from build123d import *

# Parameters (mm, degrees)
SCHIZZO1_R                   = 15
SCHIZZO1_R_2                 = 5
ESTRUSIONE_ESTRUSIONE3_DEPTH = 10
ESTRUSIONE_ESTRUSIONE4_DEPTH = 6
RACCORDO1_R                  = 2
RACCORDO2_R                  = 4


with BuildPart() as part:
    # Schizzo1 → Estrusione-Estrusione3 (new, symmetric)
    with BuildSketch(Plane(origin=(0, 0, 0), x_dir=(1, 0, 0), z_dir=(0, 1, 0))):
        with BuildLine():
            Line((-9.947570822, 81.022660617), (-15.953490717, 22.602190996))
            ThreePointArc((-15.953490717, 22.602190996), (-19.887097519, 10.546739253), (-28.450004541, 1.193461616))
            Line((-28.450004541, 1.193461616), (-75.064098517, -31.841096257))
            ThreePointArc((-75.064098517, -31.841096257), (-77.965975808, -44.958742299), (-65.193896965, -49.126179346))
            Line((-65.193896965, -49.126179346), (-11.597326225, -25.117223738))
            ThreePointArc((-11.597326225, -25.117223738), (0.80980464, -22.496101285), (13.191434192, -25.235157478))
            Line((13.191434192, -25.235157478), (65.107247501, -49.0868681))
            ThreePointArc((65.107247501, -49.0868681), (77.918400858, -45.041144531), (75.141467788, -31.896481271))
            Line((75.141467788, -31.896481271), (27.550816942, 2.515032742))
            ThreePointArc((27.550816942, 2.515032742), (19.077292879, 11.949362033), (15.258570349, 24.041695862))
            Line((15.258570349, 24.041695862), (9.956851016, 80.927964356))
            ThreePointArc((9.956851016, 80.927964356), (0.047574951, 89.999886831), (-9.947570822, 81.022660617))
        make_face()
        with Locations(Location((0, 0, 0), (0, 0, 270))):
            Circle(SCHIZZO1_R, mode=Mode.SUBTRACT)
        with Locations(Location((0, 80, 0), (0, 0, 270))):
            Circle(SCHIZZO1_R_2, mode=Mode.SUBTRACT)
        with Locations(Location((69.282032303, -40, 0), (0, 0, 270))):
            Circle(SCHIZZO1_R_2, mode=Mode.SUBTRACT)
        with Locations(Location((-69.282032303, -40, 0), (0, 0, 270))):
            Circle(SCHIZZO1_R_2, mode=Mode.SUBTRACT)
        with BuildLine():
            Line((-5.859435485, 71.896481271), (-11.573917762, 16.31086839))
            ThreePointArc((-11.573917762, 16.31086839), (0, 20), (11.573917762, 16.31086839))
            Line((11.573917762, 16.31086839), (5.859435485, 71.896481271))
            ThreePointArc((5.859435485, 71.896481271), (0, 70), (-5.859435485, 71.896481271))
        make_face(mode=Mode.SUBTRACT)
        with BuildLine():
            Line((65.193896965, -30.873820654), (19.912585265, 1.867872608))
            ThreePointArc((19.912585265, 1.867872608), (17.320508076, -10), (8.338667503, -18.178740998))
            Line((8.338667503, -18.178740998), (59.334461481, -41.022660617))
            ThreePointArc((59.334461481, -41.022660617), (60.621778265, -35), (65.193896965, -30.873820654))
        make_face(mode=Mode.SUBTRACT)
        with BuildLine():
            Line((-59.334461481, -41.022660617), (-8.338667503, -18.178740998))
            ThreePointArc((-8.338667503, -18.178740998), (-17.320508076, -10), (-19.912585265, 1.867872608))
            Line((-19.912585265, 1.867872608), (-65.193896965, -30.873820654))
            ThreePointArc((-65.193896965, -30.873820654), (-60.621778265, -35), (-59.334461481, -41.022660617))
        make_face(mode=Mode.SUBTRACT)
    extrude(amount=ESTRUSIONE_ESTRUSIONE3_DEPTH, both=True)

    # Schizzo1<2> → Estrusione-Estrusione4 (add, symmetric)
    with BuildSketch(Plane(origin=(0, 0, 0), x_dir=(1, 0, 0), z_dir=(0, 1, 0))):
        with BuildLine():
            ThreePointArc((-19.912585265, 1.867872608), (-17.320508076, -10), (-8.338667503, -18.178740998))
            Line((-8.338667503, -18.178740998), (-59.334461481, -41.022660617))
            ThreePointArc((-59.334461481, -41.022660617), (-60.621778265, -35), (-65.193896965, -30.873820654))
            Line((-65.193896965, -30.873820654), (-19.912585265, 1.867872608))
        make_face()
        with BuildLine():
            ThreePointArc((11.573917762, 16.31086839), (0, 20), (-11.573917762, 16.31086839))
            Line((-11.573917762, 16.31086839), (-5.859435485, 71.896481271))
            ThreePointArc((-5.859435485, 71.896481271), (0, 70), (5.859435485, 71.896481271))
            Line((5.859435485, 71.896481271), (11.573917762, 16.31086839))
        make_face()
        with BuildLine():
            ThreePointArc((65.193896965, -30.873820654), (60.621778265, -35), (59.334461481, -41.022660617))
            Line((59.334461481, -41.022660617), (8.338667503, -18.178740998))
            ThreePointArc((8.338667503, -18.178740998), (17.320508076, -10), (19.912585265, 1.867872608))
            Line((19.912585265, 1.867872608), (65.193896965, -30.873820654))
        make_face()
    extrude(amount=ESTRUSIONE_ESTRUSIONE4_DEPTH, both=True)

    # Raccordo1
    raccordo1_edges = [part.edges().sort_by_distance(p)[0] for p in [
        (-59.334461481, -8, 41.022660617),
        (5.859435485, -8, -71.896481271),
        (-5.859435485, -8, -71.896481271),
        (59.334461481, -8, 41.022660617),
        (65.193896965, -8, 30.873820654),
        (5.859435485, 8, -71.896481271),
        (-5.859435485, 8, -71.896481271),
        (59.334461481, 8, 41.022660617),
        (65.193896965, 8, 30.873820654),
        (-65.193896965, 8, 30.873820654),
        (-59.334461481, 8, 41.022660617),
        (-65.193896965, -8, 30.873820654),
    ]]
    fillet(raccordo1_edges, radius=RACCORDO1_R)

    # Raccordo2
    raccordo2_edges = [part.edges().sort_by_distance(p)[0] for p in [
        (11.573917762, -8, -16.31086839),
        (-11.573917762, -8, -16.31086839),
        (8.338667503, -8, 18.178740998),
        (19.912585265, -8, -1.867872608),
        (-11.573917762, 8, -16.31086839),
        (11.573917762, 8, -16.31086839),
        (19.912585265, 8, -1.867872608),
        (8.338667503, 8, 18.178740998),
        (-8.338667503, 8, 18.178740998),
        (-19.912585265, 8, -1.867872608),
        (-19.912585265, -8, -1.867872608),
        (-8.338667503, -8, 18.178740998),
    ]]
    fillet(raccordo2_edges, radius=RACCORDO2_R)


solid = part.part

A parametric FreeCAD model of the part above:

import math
import FreeCAD as App
import Part
import Sketcher

V = App.Vector
Q = App.Units.Quantity


def edges_at(feature, points):
    """Names of the edges that pass closest to the given points."""
    edges = feature.Shape.Edges
    near = lambda p: min(range(len(edges)), key=lambda i: edges[i].distToShape(Part.Vertex(*p))[0])
    return sorted({f"Edge{near(p) + 1}" for p in points})

doc = App.newDocument("Part")
body = doc.addObject("PartDesign::Body", "Body")

# Sketch on XZ plane
sketch1 = doc.addObject("Sketcher::SketchObject", "Sketch")
body.addObject(sketch1)
sketch1.AttachmentSupport = (doc.XZ_Plane, [""])
sketch1.MapMode = "FlatFace"
sketch1.addGeometry(Part.LineSegment(V(-10, -81, 0), V(-16, -23, 0)), False)
sketch1.addGeometry(Part.ArcOfCircle(Part.Circle(V(-46, -26, 0), V(0, 0, 1), 30), math.radians(6), math.radians(55)), False)
sketch1.addGeometry(Part.LineSegment(V(-28, -1, 0), V(-75, 32, 0)), False)
sketch1.addGeometry(Part.ArcOfCircle(Part.Circle(V(-69, 40, 0), V(0, 0, 1), 10), math.radians(66), math.radians(235)), False)
sketch1.addGeometry(Part.LineSegment(V(-65, 49, 0), V(-12, 25, 0)), False)
sketch1.addGeometry(Part.ArcOfCircle(Part.Circle(V(1, 52, 0), V(0, 0, 1), 30), math.radians(-114), math.radians(-65)), False)
sketch1.addGeometry(Part.LineSegment(V(13, 25, 0), V(65, 49, 0)), False)
sketch1.addGeometry(Part.ArcOfCircle(Part.Circle(V(69, 40, 0), V(0, 0, 1), 10), math.radians(-54), math.radians(115)), False)
sketch1.addGeometry(Part.LineSegment(V(75, 32, 0), V(28, -3, 0)), False)
sketch1.addGeometry(Part.ArcOfCircle(Part.Circle(V(45, -27, 0), V(0, 0, 1), 30), math.radians(126), math.radians(175)), False)
sketch1.addGeometry(Part.LineSegment(V(15, -24, 0), V(10, -81, 0)), False)
sketch1.addGeometry(Part.ArcOfCircle(Part.Circle(V(0, -80, 0), V(0, 0, 1), 10), math.radians(-174), math.radians(-5)), False)
sketch1.addGeometry(Part.Circle(V(-69, 40, 0), V(0, 0, 1), 5), False)
sketch1.addGeometry(Part.LineSegment(V(-8, 18, 0), V(-59, 41, 0)), False)
sketch1.addGeometry(Part.ArcOfCircle(Part.Circle(V(-69, 40, 0), V(0, 0, 1), 10), math.radians(-66), math.radians(6)), False)
sketch1.addGeometry(Part.LineSegment(V(-65, 31, 0), V(-20, -2, 0)), False)
sketch1.addGeometry(Part.ArcOfCircle(Part.Circle(V(0, 0, 0), V(0, 0, 1), 20), math.radians(115), math.radians(185)), False)
sketch1.addGeometry(Part.LineSegment(V(20, -2, 0), V(65, 31, 0)), False)
sketch1.addGeometry(Part.ArcOfCircle(Part.Circle(V(69, 40, 0), V(0, 0, 1), 10), math.radians(174), math.radians(246)), False)
sketch1.addGeometry(Part.LineSegment(V(59, 41, 0), V(8, 18, 0)), False)
sketch1.addGeometry(Part.ArcOfCircle(Part.Circle(V(0, 0, 0), V(0, 0, 1), 20), math.radians(-5), math.radians(65)), False)
sketch1.addGeometry(Part.Circle(V(69, 40, 0), V(0, 0, 1), 5), False)
sketch1.addGeometry(Part.Circle(V(0, 0, 0), V(0, 0, 1), 15), False)
sketch1.addGeometry(Part.LineSegment(V(-12, -16, 0), V(-6, -72, 0)), False)
sketch1.addGeometry(Part.ArcOfCircle(Part.Circle(V(0, -80, 0), V(0, 0, 1), 10), math.radians(54), math.radians(126)), False)
sketch1.addGeometry(Part.LineSegment(V(6, -72, 0), V(12, -16, 0)), False)
sketch1.addGeometry(Part.ArcOfCircle(Part.Circle(V(0, 0, 0), V(0, 0, 1), 20), math.radians(-125), math.radians(-55)), False)
sketch1.addGeometry(Part.Circle(V(0, -80, 0), V(0, 0, 1), 5), False)
sketch1.addConstraint(Sketcher.Constraint("Tangent", 0, 2, 1, 1))
sketch1.addConstraint(Sketcher.Constraint("Tangent", 1, 2, 2, 1))
sketch1.addConstraint(Sketcher.Constraint("Tangent", 2, 2, 3, 2))
sketch1.addConstraint(Sketcher.Constraint("Tangent", 3, 1, 4, 1))
sketch1.addConstraint(Sketcher.Constraint("Tangent", 4, 2, 5, 1))
sketch1.addConstraint(Sketcher.Constraint("Tangent", 5, 2, 6, 1))
sketch1.addConstraint(Sketcher.Constraint("Tangent", 6, 2, 7, 2))
sketch1.addConstraint(Sketcher.Constraint("Tangent", 7, 1, 8, 1))
sketch1.addConstraint(Sketcher.Constraint("Tangent", 8, 2, 9, 1))
sketch1.addConstraint(Sketcher.Constraint("Tangent", 9, 2, 10, 1))
sketch1.addConstraint(Sketcher.Constraint("Tangent", 10, 2, 11, 2))
sketch1.addConstraint(Sketcher.Constraint("Tangent", 11, 1, 0, 1))
sketch1.addConstraint(Sketcher.Constraint("Coincident", 13, 2, 14, 2))
sketch1.addConstraint(Sketcher.Constraint("Coincident", 14, 1, 15, 1))
sketch1.addConstraint(Sketcher.Constraint("Coincident", 15, 2, 16, 2))
sketch1.addConstraint(Sketcher.Constraint("Coincident", 16, 1, 13, 1))
sketch1.addConstraint(Sketcher.Constraint("Coincident", 17, 2, 18, 2))
sketch1.addConstraint(Sketcher.Constraint("Coincident", 18, 1, 19, 1))
sketch1.addConstraint(Sketcher.Constraint("Coincident", 19, 2, 20, 2))
sketch1.addConstraint(Sketcher.Constraint("Coincident", 20, 1, 17, 1))
sketch1.addConstraint(Sketcher.Constraint("Coincident", 23, 2, 24, 2))
sketch1.addConstraint(Sketcher.Constraint("Coincident", 24, 1, 25, 1))
sketch1.addConstraint(Sketcher.Constraint("Coincident", 25, 2, 26, 2))
sketch1.addConstraint(Sketcher.Constraint("Coincident", 26, 1, 23, 1))
sketch1.addConstraint(Sketcher.Constraint("Coincident", 16, 3, -1, 1))
sketch1.addConstraint(Sketcher.Constraint("Coincident", 20, 3, -1, 1))
sketch1.addConstraint(Sketcher.Constraint("Coincident", 22, 3, -1, 1))
sketch1.addConstraint(Sketcher.Constraint("Coincident", 26, 3, -1, 1))
sketch1.addConstraint(Sketcher.Constraint("Coincident", 12, 3, 3, 3))
sketch1.addConstraint(Sketcher.Constraint("Coincident", 14, 3, 3, 3))
sketch1.addConstraint(Sketcher.Constraint("Coincident", 18, 3, 7, 3))
sketch1.addConstraint(Sketcher.Constraint("Coincident", 21, 3, 7, 3))
sketch1.addConstraint(Sketcher.Constraint("Coincident", 24, 3, 11, 3))
sketch1.addConstraint(Sketcher.Constraint("Coincident", 27, 3, 11, 3))
sketch1.addConstraint(Sketcher.Constraint("Equal", 1, 5))
sketch1.addConstraint(Sketcher.Constraint("Equal", 3, 7))
sketch1.addConstraint(Sketcher.Constraint("Equal", 5, 9))
sketch1.addConstraint(Sketcher.Constraint("Equal", 7, 11))
sketch1.addConstraint(Sketcher.Constraint("Equal", 11, 14))
sketch1.addConstraint(Sketcher.Constraint("Equal", 14, 18))
sketch1.addConstraint(Sketcher.Constraint("Equal", 16, 20))
sketch1.addConstraint(Sketcher.Constraint("Equal", 12, 21))
sketch1.addConstraint(Sketcher.Constraint("Equal", 18, 24))
sketch1.addConstraint(Sketcher.Constraint("Equal", 20, 26))
sketch1.addConstraint(Sketcher.Constraint("Equal", 21, 27))
sketch1.addConstraint(Sketcher.Constraint("Symmetric", 3, 3, 7, 3, -2))
sketch1.addConstraint(Sketcher.Constraint("Symmetric", 23, 2, 24, 1, -2))
sketch1.addConstraint(Sketcher.Constraint("Parallel", 4, 13))
sketch1.addConstraint(Sketcher.Constraint("Parallel", 8, 17))
sketch1.addConstraint(Sketcher.Constraint("Parallel", 0, 23))
sketch1.addConstraint(Sketcher.Constraint("Horizontal", 14, 1, 17, 2))
sketch1.addConstraint(Sketcher.Constraint("Horizontal", 13, 2, 18, 1))
sketch1.addConstraint(Sketcher.Constraint("Horizontal", 16, 1, 19, 2))
sketch1.addConstraint(Sketcher.Constraint("Horizontal", 15, 2, 20, 1))
sketch1.addConstraint(Sketcher.Constraint("Horizontal", 25, 2, 26, 1))
sketch1.addConstraint(Sketcher.Constraint("Vertical", 3, 1, 14, 1))
sketch1.addConstraint(Sketcher.Constraint("Equal", 0, 4))
sketch1.addConstraint(Sketcher.Constraint("Equal", 2, 6))
sketch1.addConstraint(Sketcher.Constraint("Equal", 4, 8))
sketch1.addConstraint(Sketcher.Constraint("Equal", 6, 10))
sketch1.addConstraint(Sketcher.Constraint("Equal", 13, 15))
sketch1.addConstraint(Sketcher.Constraint("Equal", 19, 23))
sketch1.addConstraint(Sketcher.Constraint("Diameter", 12, Q("10 mm")))
sketch1.addConstraint(Sketcher.Constraint("Diameter", 22, Q("30 mm")))
sketch1.addConstraint(Sketcher.Constraint("Radius", 1, Q("30 mm")))
sketch1.addConstraint(Sketcher.Constraint("Radius", 3, Q("10 mm")))
sketch1.addConstraint(Sketcher.Constraint("Radius", 16, Q("20 mm")))
sketch1.addConstraint(Sketcher.Constraint("DistanceY", -1, 1, 3, 3, Q("40 mm")))
sketch1.addConstraint(Sketcher.Constraint("DistanceY", 11, 3, -1, 1, Q("80 mm")))
sketch1.addConstraint(Sketcher.Constraint("DistanceX", 2, 2, -1, 1, Q("75.064099 mm")))
sketch1.addConstraint(Sketcher.Constraint("DistanceX", 2, 2, 3, 1, Q("9.870202 mm")))
sketch1.addConstraint(Sketcher.Constraint("Distance", 2, Q("57.132791 mm")))
pad1 = doc.addObject("PartDesign::Pad", "Pad")
body.addObject(pad1)
pad1.Profile = sketch1
pad1.Length = 20
pad1.Midplane = True

# Sketch on XZ plane
sketch2 = doc.addObject("Sketcher::SketchObject", "Sketch001")
body.addObject(sketch2)
sketch2.AttachmentSupport = (doc.XZ_Plane, [""])
sketch2.MapMode = "FlatFace"
sketch2.addGeometry(Part.ArcOfCircle(Part.Circle(V(0, 0, 0), V(0, 0, 1), 20), math.radians(115), math.radians(185)), False)
sketch2.addGeometry(Part.LineSegment(V(-20, -2, 0), V(-65, 31, 0)), False)
sketch2.addGeometry(Part.ArcOfCircle(Part.Circle(V(-69, 40, 0), V(0, 0, 1), 10), math.radians(-66), math.radians(6)), False)
sketch2.addGeometry(Part.LineSegment(V(-59, 41, 0), V(-8, 18, 0)), False)
sketch2.addGeometry(Part.ArcOfCircle(Part.Circle(V(0, 0, 0), V(0, 0, 1), 20), math.radians(-125), math.radians(-55)), False)
sketch2.addGeometry(Part.LineSegment(V(12, -16, 0), V(6, -72, 0)), False)
sketch2.addGeometry(Part.ArcOfCircle(Part.Circle(V(0, -80, 0), V(0, 0, 1), 10), math.radians(54), math.radians(126)), False)
sketch2.addGeometry(Part.LineSegment(V(-6, -72, 0), V(-12, -16, 0)), False)
sketch2.addGeometry(Part.ArcOfCircle(Part.Circle(V(69, 40, 0), V(0, 0, 1), 10), math.radians(174), math.radians(246)), False)
sketch2.addGeometry(Part.LineSegment(V(65, 31, 0), V(20, -2, 0)), False)
sketch2.addGeometry(Part.ArcOfCircle(Part.Circle(V(0, 0, 0), V(0, 0, 1), 20), math.radians(-5), math.radians(65)), False)
sketch2.addGeometry(Part.LineSegment(V(8, 18, 0), V(59, 41, 0)), False)
sketch2.addConstraint(Sketcher.Constraint("Coincident", 0, 2, 1, 1))
sketch2.addConstraint(Sketcher.Constraint("Coincident", 1, 2, 2, 1))
sketch2.addConstraint(Sketcher.Constraint("Coincident", 2, 2, 3, 1))
sketch2.addConstraint(Sketcher.Constraint("Coincident", 3, 2, 0, 1))
sketch2.addConstraint(Sketcher.Constraint("Coincident", 4, 2, 5, 1))
sketch2.addConstraint(Sketcher.Constraint("Coincident", 5, 2, 6, 1))
sketch2.addConstraint(Sketcher.Constraint("Coincident", 6, 2, 7, 1))
sketch2.addConstraint(Sketcher.Constraint("Coincident", 7, 2, 4, 1))
sketch2.addConstraint(Sketcher.Constraint("Coincident", 8, 2, 9, 1))
sketch2.addConstraint(Sketcher.Constraint("Coincident", 9, 2, 10, 1))
sketch2.addConstraint(Sketcher.Constraint("Coincident", 10, 2, 11, 1))
sketch2.addConstraint(Sketcher.Constraint("Coincident", 11, 2, 8, 1))
sketch2.addConstraint(Sketcher.Constraint("Coincident", 0, 3, -1, 1))
sketch2.addConstraint(Sketcher.Constraint("Coincident", 4, 3, -1, 1))
sketch2.addConstraint(Sketcher.Constraint("Coincident", 10, 3, -1, 1))
sketch2.addConstraint(Sketcher.Constraint("Equal", 0, 4))
sketch2.addConstraint(Sketcher.Constraint("Equal", 2, 6))
sketch2.addConstraint(Sketcher.Constraint("Equal", 6, 8))
sketch2.addConstraint(Sketcher.Constraint("Equal", 4, 10))
sketch2.addConstraint(Sketcher.Constraint("Symmetric", 2, 3, 8, 3, -2))
sketch2.addConstraint(Sketcher.Constraint("Symmetric", 5, 2, 6, 2, -2))
sketch2.addConstraint(Sketcher.Constraint("Horizontal", 4, 2, 7, 2))
sketch2.addConstraint(Sketcher.Constraint("Horizontal", 1, 2, 8, 2))
sketch2.addConstraint(Sketcher.Constraint("Horizontal", 0, 2, 9, 2))
sketch2.addConstraint(Sketcher.Constraint("Horizontal", 3, 2, 10, 2))
sketch2.addConstraint(Sketcher.Constraint("Horizontal", 2, 2, 11, 2))
sketch2.addConstraint(Sketcher.Constraint("Equal", 1, 3))
sketch2.addConstraint(Sketcher.Constraint("Equal", 3, 5))
sketch2.addConstraint(Sketcher.Constraint("Radius", 0, Q("20 mm")))
sketch2.addConstraint(Sketcher.Constraint("Radius", 2, Q("10 mm")))
sketch2.addConstraint(Sketcher.Constraint("DistanceY", -1, 1, 2, 3, Q("40 mm")))
sketch2.addConstraint(Sketcher.Constraint("DistanceY", 6, 3, -1, 1, Q("80 mm")))
sketch2.addConstraint(Sketcher.Constraint("Distance", 1, Q("55.87858 mm")))
sketch2.addConstraint(Sketcher.Constraint("DistanceY", -1, 1, 1, 2, Q("30.873821 mm")))
sketch2.addConstraint(Sketcher.Constraint("DistanceX", 2, 2, -1, 1, Q("59.334461 mm")))
sketch2.addConstraint(Sketcher.Constraint("DistanceY", -1, 1, 2, 2, Q("41.022661 mm")))
sketch2.addConstraint(Sketcher.Constraint("DistanceY", 4, 2, -1, 1, Q("16.310868 mm")))
pad2 = doc.addObject("PartDesign::Pad", "Pad001")
body.addObject(pad2)
pad2.Profile = sketch2
pad2.Length = 12
pad2.Midplane = True
doc.recompute()

fillet = doc.addObject("PartDesign::Fillet", "Fillet")
body.addObject(fillet)
fillet.Base = (pad2, edges_at(pad2, [
    (-59.334, -8, 41.023),
    (5.859, -8, -71.896),
    (-5.859, -8, -71.896),
    (59.334, -8, 41.023),
    (65.194, -8, 30.874),
    (5.859, 8, -71.896),
    (-5.859, 8, -71.896),
    (59.334, 8, 41.023),
    (65.194, 8, 30.874),
    (-65.194, 8, 30.874),
    (-59.334, 8, 41.023),
    (-65.194, -8, 30.874),
]))
fillet.Radius = 2
doc.recompute()

fillet2 = doc.addObject("PartDesign::Fillet", "Fillet001")
body.addObject(fillet2)
fillet2.Base = (fillet, edges_at(fillet, [
    (11.574, -8, -16.311),
    (-11.574, -8, -16.311),
    (8.339, -8, 18.179),
    (19.913, -8, -1.868),
    (-11.574, 8, -16.311),
    (11.574, 8, -16.311),
    (19.913, 8, -1.868),
    (8.339, 8, 18.179),
    (-8.339, 8, 18.179),
    (-19.913, 8, -1.868),
    (-19.913, -8, -1.868),
    (-8.339, -8, 18.179),
]))
fillet2.Radius = 4

doc.recompute()
